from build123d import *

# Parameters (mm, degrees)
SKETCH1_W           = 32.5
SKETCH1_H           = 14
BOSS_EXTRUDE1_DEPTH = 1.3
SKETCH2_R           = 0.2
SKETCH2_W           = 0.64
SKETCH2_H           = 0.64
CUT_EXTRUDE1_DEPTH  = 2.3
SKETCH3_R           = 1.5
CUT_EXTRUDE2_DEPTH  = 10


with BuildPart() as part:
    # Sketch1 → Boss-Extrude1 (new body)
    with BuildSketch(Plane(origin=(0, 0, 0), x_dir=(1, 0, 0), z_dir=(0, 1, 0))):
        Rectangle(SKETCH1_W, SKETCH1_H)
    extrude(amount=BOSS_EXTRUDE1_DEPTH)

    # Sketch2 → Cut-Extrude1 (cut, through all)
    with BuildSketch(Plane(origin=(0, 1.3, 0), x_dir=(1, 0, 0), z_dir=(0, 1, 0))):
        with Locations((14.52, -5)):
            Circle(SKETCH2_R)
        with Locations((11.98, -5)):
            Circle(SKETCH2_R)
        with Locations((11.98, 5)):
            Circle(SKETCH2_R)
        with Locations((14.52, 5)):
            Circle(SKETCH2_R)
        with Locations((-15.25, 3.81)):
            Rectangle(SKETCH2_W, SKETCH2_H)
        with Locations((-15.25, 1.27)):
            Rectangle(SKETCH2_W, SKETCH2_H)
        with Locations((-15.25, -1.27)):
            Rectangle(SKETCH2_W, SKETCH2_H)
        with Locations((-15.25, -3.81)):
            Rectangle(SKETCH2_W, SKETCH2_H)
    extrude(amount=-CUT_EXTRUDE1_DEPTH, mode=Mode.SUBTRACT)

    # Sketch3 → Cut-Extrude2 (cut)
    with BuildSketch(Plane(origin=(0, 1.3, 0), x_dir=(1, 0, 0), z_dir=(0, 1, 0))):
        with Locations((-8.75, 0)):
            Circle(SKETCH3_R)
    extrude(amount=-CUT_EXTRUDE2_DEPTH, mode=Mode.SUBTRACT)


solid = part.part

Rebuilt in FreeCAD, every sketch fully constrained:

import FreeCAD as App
import Part
import Sketcher
from FreeCAD import Vector
Q = App.Units.Quantity

doc = App.newDocument("Part")
body = doc.addObject("PartDesign::Body", "Body")

# Sketch on XZ plane
sketch1 = doc.addObject("Sketcher::SketchObject", "Sketch")
body.addObject(sketch1)
sketch1.AttachmentSupport = (doc.XZ_Plane, [""])
sketch1.MapMode = "FlatFace"
sketch1.addGeometry([
    Part.LineSegment(Vector(-16, -7, 0), Vector(-16, 7, 0)),
    Part.LineSegment(Vector(-16, 7, 0), Vector(16, 7, 0)),
    Part.LineSegment(Vector(16, 7, 0), Vector(16, -7, 0)),
    Part.LineSegment(Vector(16, -7, 0), Vector(-16, -7, 0)),
], False)
sketch1.addConstraint([
    Sketcher.Constraint("Coincident", 0, 2, 1, 1),
    Sketcher.Constraint("Coincident", 1, 2, 2, 1),
    Sketcher.Constraint("Coincident", 2, 2, 3, 1),
    Sketcher.Constraint("Coincident", 3, 2, 0, 1),
    Sketcher.Constraint("Vertical", 0),
    Sketcher.Constraint("Horizontal", 1),
    Sketcher.Constraint("Vertical", 2),
    Sketcher.Constraint("Horizontal", 3),
    Sketcher.Constraint("Symmetric", 0, 2, 2, 2, -1, 1),
    Sketcher.Constraint("DistanceY", 0, 1, 0, 2, Q("14 mm")),
    Sketcher.Constraint("DistanceX", 1, 1, 1, 2, Q("32.5 mm")),
])
pad1 = doc.addObject("PartDesign::Pad", "Pad")
body.addObject(pad1)
pad1.Profile = sketch1
pad1.Length = 1.3
pad1.Reversed = True

# Sketch on XZ plane
sketch2 = doc.addObject("Sketcher::SketchObject", "Sketch001")
body.addObject(sketch2)
sketch2.AttachmentSupport = (doc.XZ_Plane, [""])
sketch2.MapMode = "FlatFace"
sketch2.AttachmentOffset = App.Placement(Vector(0, 0, -1.3), App.Rotation())
sketch2.addGeometry([
    Part.Circle(Vector(14.52, 5, 0), Vector(0, 0, 1), 0.2),  # 0
    Part.Circle(Vector(11.98, 5, 0), Vector(0, 0, 1), 0.2),  # 1
    Part.Circle(Vector(11.98, -5, 0), Vector(0, 0, 1), 0.2),  # 2
    Part.Circle(Vector(14.52, -5, 0), Vector(0, 0, 1), 0.2),  # 3
    Part.LineSegment(Vector(-15.57, -4.13, 0), Vector(-15.57, -3.49, 0)),  # 4
    Part.LineSegment(Vector(-15.57, -3.49, 0), Vector(-14.93, -3.49, 0)),  # 5
    Part.LineSegment(Vector(-14.93, -3.49, 0), Vector(-14.93, -4.13, 0)),  # 6
    Part.LineSegment(Vector(-14.93, -4.13, 0), Vector(-15.57, -4.13, 0)),  # 7
    Part.LineSegment(Vector(-15.57, -1.59, 0), Vector(-15.57, -0.95, 0)),  # 8
    Part.LineSegment(Vector(-15.57, -0.95, 0), Vector(-14.93, -0.95, 0)),  # 9
    Part.LineSegment(Vector(-14.93, -0.95, 0), Vector(-14.93, -1.59, 0)),  # 10
    Part.LineSegment(Vector(-14.93, -1.59, 0), Vector(-15.57, -1.59, 0)),  # 11
    Part.LineSegment(Vector(-15.57, 0.95, 0), Vector(-15.57, 1.59, 0)),  # 12
    Part.LineSegment(Vector(-15.57, 1.59, 0), Vector(-14.93, 1.59, 0)),  # 13
    Part.LineSegment(Vector(-14.93, 1.59, 0), Vector(-14.93, 0.95, 0)),  # 14
    Part.LineSegment(Vector(-14.93, 0.95, 0), Vector(-15.57, 0.95, 0)),  # 15
    Part.LineSegment(Vector(-15.57, 3.49, 0), Vector(-15.57, 4.13, 0)),  # 16
    Part.LineSegment(Vector(-15.57, 4.13, 0), Vector(-14.93, 4.13, 0)),  # 17
    Part.LineSegment(Vector(-14.93, 4.13, 0), Vector(-14.93, 3.49, 0)),  # 18
    Part.LineSegment(Vector(-14.93, 3.49, 0), Vector(-15.57, 3.49, 0)),  # 19
], False)
sketch2.addConstraint([
    Sketcher.Constraint("Coincident", 4, 2, 5, 1),
    Sketcher.Constraint("Coincident", 5, 2, 6, 1),
    Sketcher.Constraint("Coincident", 6, 2, 7, 1),
    Sketcher.Constraint("Coincident", 7, 2, 4, 1),
    Sketcher.Constraint("Coincident", 8, 2, 9, 1),
    Sketcher.Constraint("Coincident", 9, 2, 10, 1),
    Sketcher.Constraint("Coincident", 10, 2, 11, 1),
    Sketcher.Constraint("Coincident", 11, 2, 8, 1),
    Sketcher.Constraint("Coincident", 12, 2, 13, 1),
    Sketcher.Constraint("Coincident", 13, 2, 14, 1),
    Sketcher.Constraint("Coincident", 14, 2, 15, 1),
    Sketcher.Constraint("Coincident", 15, 2, 12, 1),
    Sketcher.Constraint("Coincident", 16, 2, 17, 1),
    Sketcher.Constraint("Coincident", 17, 2, 18, 1),
    Sketcher.Constraint("Coincident", 18, 2, 19, 1),
    Sketcher.Constraint("Coincident", 19, 2, 16, 1),
    Sketcher.Constraint("Vertical", 4),
    Sketcher.Constraint("Horizontal", 5),
    Sketcher.Constraint("Vertical", 6),
    Sketcher.Constraint("Horizontal", 7),
    Sketcher.Constraint("Vertical", 8),
    Sketcher.Constraint("Horizontal", 9),
    Sketcher.Constraint("Vertical", 10),
    Sketcher.Constraint("Horizontal", 11),
    Sketcher.Constraint("Vertical", 12),
    Sketcher.Constraint("Horizontal", 13),
    Sketcher.Constraint("Vertical", 14),
    Sketcher.Constraint("Horizontal", 15),
    Sketcher.Constraint("Vertical", 16),
    Sketcher.Constraint("Horizontal", 17),
    Sketcher.Constraint("Vertical", 18),
    Sketcher.Constraint("Horizontal", 19),
    Sketcher.Constraint("Equal", 0, 1),
    Sketcher.Constraint("Equal", 1, 2),
    Sketcher.Constraint("Equal", 2, 3),
    Sketcher.Constraint("Symmetric", 1, 3, 2, 3, -1),
    Sketcher.Constraint("Symmetric", 0, 3, 3, 3, -1),
    Sketcher.Constraint("Symmetric", 11, 2, 12, 2, -1),
    Sketcher.Constraint("Symmetric", 9, 2, 14, 2, -1),
    Sketcher.Constraint("Symmetric", 7, 2, 16, 2, -1),
    Sketcher.Constraint("Symmetric", 5, 2, 18, 2, -1),
    Sketcher.Constraint("Horizontal", 0, 3, 1, 3),
    Sketcher.Constraint("Vertical", 7, 2, 8, 2),
    Sketcher.Constraint("Vertical", 6, 2, 9, 2),
    Sketcher.Constraint("Equal", 19, 4),
    Sketcher.Constraint("Equal", 6, 8),
    Sketcher.Constraint("Diameter", 0, Q("0.4 mm")),
    Sketcher.Constraint("DistanceY", -1, 1, 0, 3, Q("5 mm")),
    Sketcher.Constraint("DistanceX", 5, 1, 5, 2, Q("0.64 mm")),
    Sketcher.Constraint("DistanceY", 5, 2, 10, 2, Q("1.9 mm")),
    Sketcher.Constraint("DistanceY", 9, 2, 14, 2, Q("1.9 mm")),
    Sketcher.Constraint("DistanceX", -1, 1, 0, 3, Q("14.52 mm")),
    Sketcher.Constraint("DistanceX", -1, 1, 1, 3, Q("11.98 mm")),
    Sketcher.Constraint("DistanceX", 4, 2, -1, 1, Q("15.57 mm")),
])
pocket1 = doc.addObject("PartDesign::Pocket", "Pocket")
body.addObject(pocket1)
pocket1.Profile = sketch2
pocket1.Type = "ThroughAll"
pocket1.Reversed = True

# Sketch on XZ plane
sketch3 = doc.addObject("Sketcher::SketchObject", "Sketch002")
body.addObject(sketch3)
sketch3.AttachmentSupport = (doc.XZ_Plane, [""])
sketch3.MapMode = "FlatFace"
sketch3.AttachmentOffset = App.Placement(Vector(0, 0, -1.3), App.Rotation())
sketch3.addGeometry(Part.Circle(Vector(-8.8, 0, 0), Vector(0, 0, 1), 1.5), False)
sketch3.addConstraint([
    Sketcher.Constraint("PointOnObject", 0, 3, -1),
    Sketcher.Constraint("Diameter", 0, Q("3 mm")),
    Sketcher.Constraint("DistanceX", 0, 3, -1, 1, Q("8.75 mm")),
])
pocket2 = doc.addObject("PartDesign::Pocket", "Pocket001")
body.addObject(pocket2)
pocket2.Profile = sketch3
pocket2.Length = 10
pocket2.Reversed = True

doc.recompute()
